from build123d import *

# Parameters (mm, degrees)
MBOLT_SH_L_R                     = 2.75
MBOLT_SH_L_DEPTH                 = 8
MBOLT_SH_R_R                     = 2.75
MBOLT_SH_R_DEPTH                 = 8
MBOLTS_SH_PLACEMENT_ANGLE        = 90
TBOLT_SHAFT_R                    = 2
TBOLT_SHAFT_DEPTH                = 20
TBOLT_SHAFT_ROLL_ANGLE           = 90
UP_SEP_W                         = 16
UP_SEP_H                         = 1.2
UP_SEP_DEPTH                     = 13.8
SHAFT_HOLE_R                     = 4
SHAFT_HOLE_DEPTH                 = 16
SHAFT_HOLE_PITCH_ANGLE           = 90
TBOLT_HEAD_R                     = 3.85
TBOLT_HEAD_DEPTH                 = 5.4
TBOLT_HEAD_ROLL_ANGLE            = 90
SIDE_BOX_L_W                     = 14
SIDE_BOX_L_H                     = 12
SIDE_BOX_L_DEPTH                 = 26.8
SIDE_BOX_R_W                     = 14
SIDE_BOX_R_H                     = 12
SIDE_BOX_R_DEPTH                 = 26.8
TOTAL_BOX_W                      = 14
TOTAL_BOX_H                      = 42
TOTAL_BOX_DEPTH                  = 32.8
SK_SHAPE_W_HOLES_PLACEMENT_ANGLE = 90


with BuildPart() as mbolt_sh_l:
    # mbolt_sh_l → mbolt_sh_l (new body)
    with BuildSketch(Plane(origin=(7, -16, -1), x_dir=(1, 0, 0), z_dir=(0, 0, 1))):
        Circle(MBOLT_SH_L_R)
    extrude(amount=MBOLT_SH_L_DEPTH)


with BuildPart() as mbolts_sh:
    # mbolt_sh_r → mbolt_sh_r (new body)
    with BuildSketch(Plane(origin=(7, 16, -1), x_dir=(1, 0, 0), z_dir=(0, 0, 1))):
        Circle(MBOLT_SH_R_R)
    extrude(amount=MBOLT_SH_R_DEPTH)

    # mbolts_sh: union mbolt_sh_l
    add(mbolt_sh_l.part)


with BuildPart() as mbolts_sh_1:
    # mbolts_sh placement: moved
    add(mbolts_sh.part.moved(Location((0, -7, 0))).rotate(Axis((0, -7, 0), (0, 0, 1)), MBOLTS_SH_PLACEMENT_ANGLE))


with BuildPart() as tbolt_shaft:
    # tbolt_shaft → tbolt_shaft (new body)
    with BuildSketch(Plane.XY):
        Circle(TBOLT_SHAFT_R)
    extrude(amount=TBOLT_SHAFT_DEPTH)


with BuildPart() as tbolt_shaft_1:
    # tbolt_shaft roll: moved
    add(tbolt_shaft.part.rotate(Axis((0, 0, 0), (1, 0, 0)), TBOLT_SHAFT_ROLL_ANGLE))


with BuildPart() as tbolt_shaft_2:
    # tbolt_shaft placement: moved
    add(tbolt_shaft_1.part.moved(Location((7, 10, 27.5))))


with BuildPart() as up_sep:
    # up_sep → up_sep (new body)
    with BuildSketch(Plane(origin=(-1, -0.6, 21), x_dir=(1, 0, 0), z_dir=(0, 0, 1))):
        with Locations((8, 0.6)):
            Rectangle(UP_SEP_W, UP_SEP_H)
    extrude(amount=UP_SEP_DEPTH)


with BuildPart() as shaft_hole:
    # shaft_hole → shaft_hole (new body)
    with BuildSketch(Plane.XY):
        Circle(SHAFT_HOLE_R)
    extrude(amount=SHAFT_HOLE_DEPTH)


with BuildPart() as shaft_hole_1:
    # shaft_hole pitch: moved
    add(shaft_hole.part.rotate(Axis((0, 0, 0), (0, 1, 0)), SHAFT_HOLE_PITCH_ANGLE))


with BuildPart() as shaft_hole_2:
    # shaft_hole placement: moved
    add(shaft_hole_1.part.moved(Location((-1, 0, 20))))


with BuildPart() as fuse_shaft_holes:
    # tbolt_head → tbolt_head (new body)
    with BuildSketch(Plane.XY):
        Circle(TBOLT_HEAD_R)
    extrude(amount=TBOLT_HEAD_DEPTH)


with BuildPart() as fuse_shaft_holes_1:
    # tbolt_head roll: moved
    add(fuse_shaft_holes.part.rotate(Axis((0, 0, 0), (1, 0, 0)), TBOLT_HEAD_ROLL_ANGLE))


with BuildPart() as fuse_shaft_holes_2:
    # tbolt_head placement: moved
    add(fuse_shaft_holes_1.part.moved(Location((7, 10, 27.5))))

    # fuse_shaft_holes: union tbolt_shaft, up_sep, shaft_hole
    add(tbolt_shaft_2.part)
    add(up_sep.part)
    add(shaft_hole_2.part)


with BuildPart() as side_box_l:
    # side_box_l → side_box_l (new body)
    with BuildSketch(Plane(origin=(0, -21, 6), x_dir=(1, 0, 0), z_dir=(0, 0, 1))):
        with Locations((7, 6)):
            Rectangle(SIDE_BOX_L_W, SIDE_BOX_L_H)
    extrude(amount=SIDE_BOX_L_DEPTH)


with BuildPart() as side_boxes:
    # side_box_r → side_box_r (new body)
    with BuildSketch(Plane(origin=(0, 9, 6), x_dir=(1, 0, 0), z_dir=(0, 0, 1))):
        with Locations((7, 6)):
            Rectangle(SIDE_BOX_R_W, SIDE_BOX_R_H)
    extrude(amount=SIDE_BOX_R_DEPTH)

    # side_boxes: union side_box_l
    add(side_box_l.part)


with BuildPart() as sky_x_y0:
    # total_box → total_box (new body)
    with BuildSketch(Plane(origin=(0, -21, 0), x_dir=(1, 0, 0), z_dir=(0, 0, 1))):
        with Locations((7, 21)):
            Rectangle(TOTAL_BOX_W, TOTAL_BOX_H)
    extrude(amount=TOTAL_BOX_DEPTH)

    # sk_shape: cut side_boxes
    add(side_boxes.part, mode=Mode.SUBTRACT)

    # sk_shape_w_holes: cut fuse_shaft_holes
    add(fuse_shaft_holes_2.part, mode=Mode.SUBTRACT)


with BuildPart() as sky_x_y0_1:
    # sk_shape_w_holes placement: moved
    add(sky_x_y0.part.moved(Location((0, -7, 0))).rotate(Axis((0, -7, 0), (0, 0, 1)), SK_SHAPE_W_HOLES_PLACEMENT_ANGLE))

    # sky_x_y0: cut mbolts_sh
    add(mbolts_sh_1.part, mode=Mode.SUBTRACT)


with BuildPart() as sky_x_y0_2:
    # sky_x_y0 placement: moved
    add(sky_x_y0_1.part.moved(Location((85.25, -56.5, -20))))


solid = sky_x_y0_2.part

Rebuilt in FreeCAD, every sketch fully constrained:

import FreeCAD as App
import Part
import Sketcher


def add_polygon(sketch, points):
    """Adds a closed chain of lines whose ends are joined by coincident constraints."""
    first, n = sketch.GeometryCount, len(points)
    for a, b in zip(points, points[1:] + points[:1]):
        sketch.addGeometry(Part.LineSegment(App.Vector(*a, 0), App.Vector(*b, 0)), False)
    for i in range(n):
        sketch.addConstraint(Sketcher.Constraint("Coincident", first + i, 2, first + (i + 1) % n, 1))

doc = App.newDocument("Part")
body = doc.addObject("PartDesign::Body", "Body")

# Sketch on XY plane
sketch1 = body.newObject("Sketcher::SketchObject", "Sketch")
sketch1.AttachmentSupport = (doc.getObject("XY_Plane"), [""])
sketch1.MapMode = "FlatFace"
sketch1.AttachmentOffset = App.Placement(App.Vector(0, 0, -1), App.Rotation())
sketch1.addGeometry(Part.Circle(App.Vector(7, -16, 0), App.Vector(0, 0, 1), 2.75), False)
sketch1.addConstraint([
    Sketcher.Constraint("Diameter", 0, 5.5),
    Sketcher.Constraint("DistanceX", -1, 1, 0, 3, 7.0),
    Sketcher.Constraint("DistanceY", 0, 3, -1, 1, 16.0),
])
pad1 = body.newObject("PartDesign::Pad", "Pad")
pad1.Profile = sketch1
pad1.Length = 8
body2 = doc.addObject("PartDesign::Body", "Body001")
body2.AllowCompound = True

# Sketch on XY plane
sketch2 = body2.newObject("Sketcher::SketchObject", "Sketch001")
sketch2.AttachmentSupport = (doc.getObject("XY_Plane001"), [""])
sketch2.MapMode = "FlatFace"
sketch2.AttachmentOffset = App.Placement(App.Vector(0, 0, -1), App.Rotation())
sketch2.addGeometry(Part.Circle(App.Vector(7, 16, 0), App.Vector(0, 0, 1), 2.75), False)
sketch2.addConstraint([
    Sketcher.Constraint("Diameter", 0, 5.5),
    Sketcher.Constraint("DistanceX", -1, 1, 0, 3, 7.0),
    Sketcher.Constraint("DistanceY", -1, 1, 0, 3, 16.0),
])
pad2 = body2.newObject("PartDesign::Pad", "Pad001")
pad2.Profile = sketch2
pad2.Length = 8
doc.recompute()

boolean = body2.newObject("PartDesign::Boolean", "Boolean")
boolean.Type = "Fuse"
boolean.addObjects([body])
body3 = doc.addObject("PartDesign::Body", "Body002")
body3.AllowCompound = True
doc.recompute()

body2.Placement = App.Placement(App.Vector(0, -7, 0), App.Rotation(App.Vector(0, 0, 1), 90))
boolean2 = body3.newObject("PartDesign::Boolean", "Boolean001")
boolean2.Type = "Fuse"
boolean2.addObjects([body2])
body4 = doc.addObject("PartDesign::Body", "Body003")

# Sketch on XY plane
sketch3 = body4.newObject("Sketcher::SketchObject", "Sketch002")
sketch3.AttachmentSupport = (doc.getObject("XY_Plane003"), [""])
sketch3.MapMode = "FlatFace"
sketch3.addGeometry(Part.Circle(App.Vector(0, 0, 0), App.Vector(0, 0, 1), 2), False)
sketch3.addConstraint([
    Sketcher.Constraint("Coincident", 0, 3, -1, 1),
    Sketcher.Constraint("Diameter", 0, 4.0),
])
pad3 = body4.newObject("PartDesign::Pad", "Pad002")
pad3.Profile = sketch3
pad3.Length = 20
body5 = doc.addObject("PartDesign::Body", "Body004")
doc.recompute()

body4.Placement = App.Placement(App.Vector(0, 0, 0), App.Rotation(App.Vector(1, 0, 0), 90))
boolean3 = body5.newObject("PartDesign::Boolean", "Boolean002")
boolean3.Type = "Fuse"
boolean3.addObjects([body4])
body6 = doc.addObject("PartDesign::Body", "Body005")
doc.recompute()

body5.Placement = App.Placement(App.Vector(7, 10, 27.5), App.Rotation(App.Vector(0, 0, 1), 0))
boolean4 = body6.newObject("PartDesign::Boolean", "Boolean003")
boolean4.Type = "Fuse"
boolean4.addObjects([body5])
body7 = doc.addObject("PartDesign::Body", "Body006")

# Sketch on XY plane
sketch4 = body7.newObject("Sketcher::SketchObject", "Sketch003")
sketch4.AttachmentSupport = (doc.getObject("XY_Plane006"), [""])
sketch4.MapMode = "FlatFace"
sketch4.AttachmentOffset = App.Placement(App.Vector(0, 0, 21), App.Rotation())
add_polygon(sketch4, [(-1, 0.6), (-1, -0.6), (15, -0.6), (15, 0.6)])  # lines 0-3
sketch4.addConstraint([
    Sketcher.Constraint("Vertical", 0),
    Sketcher.Constraint("Horizontal", 1),
    Sketcher.Constraint("Vertical", 2),
    Sketcher.Constraint("Horizontal", 3),
    Sketcher.Constraint("DistanceX", 1, 1, 1, 2, 16.0),
    Sketcher.Constraint("DistanceY", 0, 2, 0, 1, 1.2),
    Sketcher.Constraint("DistanceX", 0, 2, -1, 1, 1.0),
    Sketcher.Constraint("DistanceY", 0, 2, -1, 1, 0.6),
])
pad4 = body7.newObject("PartDesign::Pad", "Pad003")
pad4.Profile = sketch4
pad4.Length = 13.8
body8 = doc.addObject("PartDesign::Body", "Body007")

# Sketch on XY plane
sketch5 = body8.newObject("Sketcher::SketchObject", "Sketch004")
sketch5.AttachmentSupport = (doc.getObject("XY_Plane007"), [""])
sketch5.MapMode = "FlatFace"
sketch5.addGeometry(Part.Circle(App.Vector(0, 0, 0), App.Vector(0, 0, 1), 4), False)
sketch5.addConstraint([
    Sketcher.Constraint("Coincident", 0, 3, -1, 1),
    Sketcher.Constraint("Diameter", 0, 8.0),
])
pad5 = body8.newObject("PartDesign::Pad", "Pad004")
pad5.Profile = sketch5
pad5.Length = 16
body9 = doc.addObject("PartDesign::Body", "Body008")
doc.recompute()

body8.Placement = App.Placement(App.Vector(0, 0, 0), App.Rotation(App.Vector(0, 1, 0), 90))
boolean5 = body9.newObject("PartDesign::Boolean", "Boolean004")
boolean5.Type = "Fuse"
boolean5.addObjects([body8])
body10 = doc.addObject("PartDesign::Body", "Body009")
doc.recompute()

body9.Placement = App.Placement(App.Vector(-1, 0, 20), App.Rotation(App.Vector(0, 0, 1), 0))
boolean6 = body10.newObject("PartDesign::Boolean", "Boolean005")
boolean6.Type = "Fuse"
boolean6.addObjects([body9])
body11 = doc.addObject("PartDesign::Body", "Body010")

# Sketch on XY plane
sketch6 = body11.newObject("Sketcher::SketchObject", "Sketch005")
sketch6.AttachmentSupport = (doc.getObject("XY_Plane010"), [""])
sketch6.MapMode = "FlatFace"
sketch6.addGeometry(Part.Circle(App.Vector(0, 0, 0), App.Vector(0, 0, 1), 3.85), False)
sketch6.addConstraint([
    Sketcher.Constraint("Coincident", 0, 3, -1, 1),
    Sketcher.Constraint("Diameter", 0, 7.7),
])
pad6 = body11.newObject("PartDesign::Pad", "Pad005")
pad6.Profile = sketch6
pad6.Length = 5.4
body12 = doc.addObject("PartDesign::Body", "Body011")
doc.recompute()

body11.Placement = App.Placement(App.Vector(0, 0, 0), App.Rotation(App.Vector(1, 0, 0), 90))
boolean7 = body12.newObject("PartDesign::Boolean", "Boolean006")
boolean7.Type = "Fuse"
boolean7.addObjects([body11])
body13 = doc.addObject("PartDesign::Body", "Body012")
doc.recompute()

body12.Placement = App.Placement(App.Vector(7, 10, 27.5), App.Rotation(App.Vector(0, 0, 1), 0))
boolean8 = body13.newObject("PartDesign::Boolean", "Boolean007")
boolean8.Type = "Fuse"
boolean8.addObjects([body12])
doc.recompute()

boolean9 = body13.newObject("PartDesign::Boolean", "Boolean008")
boolean9.Type = "Fuse"
boolean9.addObjects([body6])
doc.recompute()

boolean10 = body13.newObject("PartDesign::Boolean", "Boolean009")
boolean10.Type = "Fuse"
boolean10.addObjects([body7])
doc.recompute()

boolean11 = body13.newObject("PartDesign::Boolean", "Boolean010")
boolean11.Type = "Fuse"
boolean11.addObjects([body10])
body14 = doc.addObject("PartDesign::Body", "Body013")

# Sketch on XY plane
sketch7 = body14.newObject("Sketcher::SketchObject", "Sketch006")
sketch7.AttachmentSupport = (doc.getObject("XY_Plane013"), [""])
sketch7.MapMode = "FlatFace"
sketch7.AttachmentOffset = App.Placement(App.Vector(0, 0, 6), App.Rotation())
add_polygon(sketch7, [(0, -9), (0, -21), (14, -21), (14, -9)])  # lines 0-3
sketch7.addConstraint([
    Sketcher.Constraint("Vertical", 0),
    Sketcher.Constraint("Horizontal", 1),
    Sketcher.Constraint("Vertical", 2),
    Sketcher.Constraint("Horizontal", 3),
    Sketcher.Constraint("PointOnObject", 0, 2, -2),
    Sketcher.Constraint("DistanceX", 1, 1, 1, 2, 14.0),
    Sketcher.Constraint("DistanceY", 0, 2, 0, 1, 12.0),
    Sketcher.Constraint("DistanceY", 0, 2, -1, 1, 21.0),
])
pad7 = body14.newObject("PartDesign::Pad", "Pad006")
pad7.Profile = sketch7
pad7.Length = 26.8
body15 = doc.addObject("PartDesign::Body", "Body014")
body15.AllowCompound = True

# Sketch on XY plane
sketch8 = body15.newObject("Sketcher::SketchObject", "Sketch007")
sketch8.AttachmentSupport = (doc.getObject("XY_Plane014"), [""])
sketch8.MapMode = "FlatFace"
sketch8.AttachmentOffset = App.Placement(App.Vector(0, 0, 6), App.Rotation())
add_polygon(sketch8, [(0, 21), (0, 9), (14, 9), (14, 21)])  # lines 0-3
sketch8.addConstraint([
    Sketcher.Constraint("Vertical", 0),
    Sketcher.Constraint("Horizontal", 1),
    Sketcher.Constraint("Vertical", 2),
    Sketcher.Constraint("Horizontal", 3),
    Sketcher.Constraint("PointOnObject", 0, 2, -2),
    Sketcher.Constraint("DistanceX", 1, 1, 1, 2, 14.0),
    Sketcher.Constraint("DistanceY", 0, 2, 0, 1, 12.0),
    Sketcher.Constraint("DistanceY", -1, 1, 0, 2, 9.0),
])
pad8 = body15.newObject("PartDesign::Pad", "Pad007")
pad8.Profile = sketch8
pad8.Length = 26.8
doc.recompute()

boolean12 = body15.newObject("PartDesign::Boolean", "Boolean011")
boolean12.Type = "Fuse"
boolean12.addObjects([body14])
body16 = doc.addObject("PartDesign::Body", "Body015")

# Sketch on XY plane
sketch9 = body16.newObject("Sketcher::SketchObject", "Sketch008")
sketch9.AttachmentSupport = (doc.getObject("XY_Plane015"), [""])
sketch9.MapMode = "FlatFace"
add_polygon(sketch9, [(0, 21), (0, -21), (14, -21), (14, 21)])  # lines 0-3
sketch9.addConstraint([
    Sketcher.Constraint("Vertical", 0),
    Sketcher.Constraint("Horizontal", 1),
    Sketcher.Constraint("Vertical", 2),
    Sketcher.Constraint("Horizontal", 3),
    Sketcher.Constraint("Symmetric", 0, 2, 3, 2, -1, 1),
    Sketcher.Constraint("DistanceX", 1, 1, 1, 2, 14.0),
    Sketcher.Constraint("DistanceY", 0, 2, 0, 1, 42.0),
])
pad9 = body16.newObject("PartDesign::Pad", "Pad008")
pad9.Profile = sketch9
pad9.Length = 32.8
doc.recompute()

boolean13 = body16.newObject("PartDesign::Boolean", "Boolean012")
boolean13.Type = "Cut"
boolean13.addObjects([body15])
doc.recompute()

boolean14 = body16.newObject("PartDesign::Boolean", "Boolean013")
boolean14.Type = "Cut"
boolean14.addObjects([body13])
body17 = doc.addObject("PartDesign::Body", "Body016")
doc.recompute()

body16.Placement = App.Placement(App.Vector(0, -7, 0), App.Rotation(App.Vector(0, 0, 1), 90))
boolean15 = body17.newObject("PartDesign::Boolean", "Boolean014")
boolean15.Type = "Fuse"
boolean15.addObjects([body16])
doc.recompute()

boolean16 = body17.newObject("PartDesign::Boolean", "Boolean015")
boolean16.Type = "Cut"
boolean16.addObjects([body3])
body18 = doc.addObject("PartDesign::Body", "Body017")
doc.recompute()

body17.Placement = App.Placement(App.Vector(85.25, -56.5, -20), App.Rotation(App.Vector(0, 0, 1), 0))
boolean17 = body18.newObject("PartDesign::Boolean", "Boolean016")
boolean17.Type = "Fuse"
boolean17.addObjects([body17])

doc.recompute()
